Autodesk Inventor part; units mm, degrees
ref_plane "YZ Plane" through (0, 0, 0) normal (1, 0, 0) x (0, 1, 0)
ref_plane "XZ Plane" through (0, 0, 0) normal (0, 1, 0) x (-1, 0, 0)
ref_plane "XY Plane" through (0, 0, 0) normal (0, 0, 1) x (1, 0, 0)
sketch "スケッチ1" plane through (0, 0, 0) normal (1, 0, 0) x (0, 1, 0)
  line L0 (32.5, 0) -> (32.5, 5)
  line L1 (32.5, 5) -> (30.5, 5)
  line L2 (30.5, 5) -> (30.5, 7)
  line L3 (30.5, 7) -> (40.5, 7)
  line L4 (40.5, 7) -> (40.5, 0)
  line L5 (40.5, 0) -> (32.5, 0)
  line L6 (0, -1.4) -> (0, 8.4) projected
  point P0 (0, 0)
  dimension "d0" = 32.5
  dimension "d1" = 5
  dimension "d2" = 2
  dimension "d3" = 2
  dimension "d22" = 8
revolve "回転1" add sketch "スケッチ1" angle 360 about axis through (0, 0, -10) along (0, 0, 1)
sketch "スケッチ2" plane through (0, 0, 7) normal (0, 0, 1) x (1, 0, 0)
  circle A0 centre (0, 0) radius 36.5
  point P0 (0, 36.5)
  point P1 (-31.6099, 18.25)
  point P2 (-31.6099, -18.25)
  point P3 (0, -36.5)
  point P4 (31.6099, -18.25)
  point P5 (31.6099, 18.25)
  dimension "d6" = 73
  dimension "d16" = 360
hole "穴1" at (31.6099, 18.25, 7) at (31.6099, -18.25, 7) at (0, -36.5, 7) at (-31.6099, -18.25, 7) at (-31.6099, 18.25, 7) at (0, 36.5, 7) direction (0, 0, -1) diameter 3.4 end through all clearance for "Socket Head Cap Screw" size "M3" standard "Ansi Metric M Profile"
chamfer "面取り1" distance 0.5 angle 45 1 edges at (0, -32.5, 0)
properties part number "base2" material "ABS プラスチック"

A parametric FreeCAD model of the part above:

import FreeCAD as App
import Part
import Sketcher

V = App.Vector
Q = App.Units.Quantity


def edges_at(feature, points):
    """Names of the edges that pass closest to the given points."""
    edges = feature.Shape.Edges
    near = lambda p: min(range(len(edges)), key=lambda i: edges[i].distToShape(Part.Vertex(*p))[0])
    return sorted({f"Edge{near(p) + 1}" for p in points})

doc = App.newDocument("Part")
body = doc.addObject("PartDesign::Body", "Body")

# Sketch on YZ plane
sketch1 = body.newObject("Sketcher::SketchObject", "Sketch")
sketch1.AttachmentSupport = (doc.getObject("YZ_Plane"), [""])
sketch1.MapMode = "FlatFace"
sketch1.addGeometry([
    Part.LineSegment(V(32.5, 5, 0), V(32.5, 0, 0)),  # 0
    Part.LineSegment(V(32.5, 0, 0), V(40.5, 0, 0)),  # 1
    Part.LineSegment(V(40.5, 0, 0), V(40.5, 7, 0)),  # 2
    Part.LineSegment(V(40.5, 7, 0), V(30.5, 7, 0)),  # 3
    Part.LineSegment(V(30.5, 7, 0), V(30.5, 5, 0)),  # 4
    Part.LineSegment(V(30.5, 5, 0), V(32.5, 5, 0)),  # 5
], False)
sketch1.addConstraint([
    Sketcher.Constraint("Coincident", 0, 2, 1, 1),
    Sketcher.Constraint("Coincident", 1, 2, 2, 1),
    Sketcher.Constraint("Coincident", 2, 2, 3, 1),
    Sketcher.Constraint("Coincident", 3, 2, 4, 1),
    Sketcher.Constraint("Coincident", 4, 2, 5, 1),
    Sketcher.Constraint("Coincident", 5, 2, 0, 1),
    Sketcher.Constraint("Vertical", 0),
    Sketcher.Constraint("Horizontal", 1),
    Sketcher.Constraint("Vertical", 2),
    Sketcher.Constraint("Horizontal", 3),
    Sketcher.Constraint("Vertical", 4),
    Sketcher.Constraint("Horizontal", 5),
    Sketcher.Constraint("PointOnObject", 0, 2, -1),
    Sketcher.Constraint("Equal", 5, 4),
    Sketcher.Constraint("DistanceX", 1, 1, 1, 2, Q("8 mm")),
    Sketcher.Constraint("DistanceX", 5, 1, 5, 2, Q("2 mm")),
    Sketcher.Constraint("DistanceY", 0, 2, 0, 1, Q("5 mm")),
    Sketcher.Constraint("DistanceX", -1, 1, 0, 2, Q("32.5 mm")),
])
revolution = body.newObject("PartDesign::Revolution", "Revolution")
revolution.Profile = sketch1
revolution.ReferenceAxis = (sketch1, ["V_Axis"])
revolution.Angle = 360

# Sketch on XY plane
sketch2 = body.newObject("Sketcher::SketchObject", "Sketch001")
sketch2.AttachmentSupport = (doc.getObject("XY_Plane"), [""])
sketch2.MapMode = "FlatFace"
sketch2.AttachmentOffset = App.Placement(V(0, 0, 7), App.Rotation())
sketch2.addGeometry([
    Part.Circle(V(31.6, 18.2, 0), V(0, 0, 1), 1.7),  # 0
    Part.Circle(V(31.6, -18.2, 0), V(0, 0, 1), 1.7),  # 1
    Part.Circle(V(0, -36.5, 0), V(0, 0, 1), 1.7),  # 2
    Part.Circle(V(-31.6, -18.2, 0), V(0, 0, 1), 1.7),  # 3
    Part.Circle(V(-31.6, 18.2, 0), V(0, 0, 1), 1.7),  # 4
    Part.Circle(V(0, 36.5, 0), V(0, 0, 1), 1.7),  # 5
], False)
sketch2.addConstraint([
    Sketcher.Constraint("Equal", 0, 1),
    Sketcher.Constraint("Equal", 1, 2),
    Sketcher.Constraint("Equal", 2, 3),
    Sketcher.Constraint("Equal", 3, 4),
    Sketcher.Constraint("Equal", 4, 5),
    Sketcher.Constraint("Symmetric", 0, 3, 3, 3, -1, 1),
    Sketcher.Constraint("Symmetric", 1, 3, 4, 3, -1, 1),
    Sketcher.Constraint("Symmetric", 2, 3, 5, 3, -1, 1),
    Sketcher.Constraint("Symmetric", 1, 3, 3, 3, -2),
    Sketcher.Constraint("PointOnObject", 2, 3, -2),
    Sketcher.Constraint("Diameter", 0, Q("3.4 mm")),
    Sketcher.Constraint("DistanceY", 2, 3, 5, 3, Q("73 mm")),
    Sketcher.Constraint("DistanceY", 1, 3, 0, 3, Q("36.5 mm")),
    Sketcher.Constraint("DistanceX", -1, 1, 0, 3, Q("31.61 mm")),
])
doc.recompute()
hole = body.newObject("PartDesign::Hole", "Hole")
hole.Profile = sketch2
hole.ThreadType = "None"
hole.Diameter = 3.4
hole.DepthType = "ThroughAll"
doc.recompute()

chamfer = body.newObject("PartDesign::Chamfer", "Chamfer")
chamfer.Base = (hole, edges_at(hole, [(0, -32.5, 0)]))
chamfer.Size = 0.5

doc.recompute()
